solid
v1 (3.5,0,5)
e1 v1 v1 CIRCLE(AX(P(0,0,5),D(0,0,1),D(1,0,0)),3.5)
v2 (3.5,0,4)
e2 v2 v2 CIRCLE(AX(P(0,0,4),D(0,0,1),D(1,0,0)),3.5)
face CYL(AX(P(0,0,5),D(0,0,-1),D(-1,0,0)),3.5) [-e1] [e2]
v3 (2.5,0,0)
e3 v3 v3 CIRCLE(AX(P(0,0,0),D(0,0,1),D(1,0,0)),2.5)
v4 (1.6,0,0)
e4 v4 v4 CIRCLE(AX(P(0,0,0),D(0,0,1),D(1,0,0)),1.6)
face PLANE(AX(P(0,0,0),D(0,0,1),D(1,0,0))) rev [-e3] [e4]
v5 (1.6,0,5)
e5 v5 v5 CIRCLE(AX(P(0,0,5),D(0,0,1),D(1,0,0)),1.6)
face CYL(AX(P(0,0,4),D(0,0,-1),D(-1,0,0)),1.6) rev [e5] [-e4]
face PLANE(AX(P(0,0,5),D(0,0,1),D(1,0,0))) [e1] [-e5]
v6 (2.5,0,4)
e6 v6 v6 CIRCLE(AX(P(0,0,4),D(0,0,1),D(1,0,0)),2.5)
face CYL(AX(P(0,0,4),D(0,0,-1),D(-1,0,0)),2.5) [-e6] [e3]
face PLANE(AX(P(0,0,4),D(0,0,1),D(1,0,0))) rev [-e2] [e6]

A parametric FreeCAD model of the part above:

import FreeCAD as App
import Part
import Sketcher
from FreeCAD import Vector
Q = App.Units.Quantity

doc = App.newDocument("Part")
params = doc.addObject("Spreadsheet::Sheet", "Params")
for row, (alias, value) in enumerate([
    ("sketch1_diameter", "5 mm"),
    ("sketch1_diameter2", "3.2 mm"),
    ("pad1_length", "4 mm"),
    ("sketch2_diameter", "7 mm"),
    ("sketch2_diameter2", "3.2 mm"),
    ("pad2_length", "1 mm"),
], start=1):
    params.set(f"A{row}", alias)
    params.set(f"B{row}", "=" + value)
    params.setAlias(f"B{row}", alias)

body = doc.addObject("PartDesign::Body", "Body")

sketch1 = doc.addObject("Sketcher::SketchObject", "Sketch")
body.addObject(sketch1)
sketch1.AttachmentSupport = (doc.XY_Plane, [""])
sketch1.MapMode = "FlatFace"
sketch1.addGeometry(Part.Circle(Vector(0, 0, 0), Vector(0, 0, 1), 2.5), False)
sketch1.addGeometry(Part.Circle(Vector(0, 0, 0), Vector(0, 0, 1), 1.6), False)
sketch1.addConstraint(Sketcher.Constraint("Coincident", 0, 3, -1, 1))
sketch1.addConstraint(Sketcher.Constraint("Coincident", 1, 3, -1, 1))
sketch1.addConstraint(Sketcher.Constraint("Diameter", 0, Q("5 mm")))
sketch1.addConstraint(Sketcher.Constraint("Diameter", 1, Q("3.2 mm")))
sketch1.setExpression("Constraints[2]", "Params.sketch1_diameter")
sketch1.setExpression("Constraints[3]", "Params.sketch1_diameter2")
pad1 = doc.addObject("PartDesign::Pad", "Pad")
body.addObject(pad1)
pad1.Profile = sketch1
pad1.setExpression("Length", "Params.pad1_length")

sketch2 = doc.addObject("Sketcher::SketchObject", "Sketch001")
body.addObject(sketch2)
sketch2.AttachmentSupport = (doc.XY_Plane, [""])
sketch2.MapMode = "FlatFace"
sketch2.AttachmentOffset = App.Placement(Vector(0, 0, 4), App.Rotation())
sketch2.addGeometry(Part.Circle(Vector(0, 0, 0), Vector(0, 0, 1), 3.5), False)
sketch2.addGeometry(Part.Circle(Vector(0, 0, 0), Vector(0, 0, 1), 1.6), False)
sketch2.addConstraint(Sketcher.Constraint("Coincident", 0, 3, -1, 1))
sketch2.addConstraint(Sketcher.Constraint("Coincident", 1, 3, -1, 1))
sketch2.addConstraint(Sketcher.Constraint("Diameter", 0, Q("7 mm")))
sketch2.addConstraint(Sketcher.Constraint("Diameter", 1, Q("3.2 mm")))
sketch2.setExpression("Constraints[2]", "Params.sketch2_diameter")
sketch2.setExpression("Constraints[3]", "Params.sketch2_diameter2")
pad2 = doc.addObject("PartDesign::Pad", "Pad001")
body.addObject(pad2)
pad2.Profile = sketch2
pad2.setExpression("Length", "Params.pad2_length")

doc.recompute()
